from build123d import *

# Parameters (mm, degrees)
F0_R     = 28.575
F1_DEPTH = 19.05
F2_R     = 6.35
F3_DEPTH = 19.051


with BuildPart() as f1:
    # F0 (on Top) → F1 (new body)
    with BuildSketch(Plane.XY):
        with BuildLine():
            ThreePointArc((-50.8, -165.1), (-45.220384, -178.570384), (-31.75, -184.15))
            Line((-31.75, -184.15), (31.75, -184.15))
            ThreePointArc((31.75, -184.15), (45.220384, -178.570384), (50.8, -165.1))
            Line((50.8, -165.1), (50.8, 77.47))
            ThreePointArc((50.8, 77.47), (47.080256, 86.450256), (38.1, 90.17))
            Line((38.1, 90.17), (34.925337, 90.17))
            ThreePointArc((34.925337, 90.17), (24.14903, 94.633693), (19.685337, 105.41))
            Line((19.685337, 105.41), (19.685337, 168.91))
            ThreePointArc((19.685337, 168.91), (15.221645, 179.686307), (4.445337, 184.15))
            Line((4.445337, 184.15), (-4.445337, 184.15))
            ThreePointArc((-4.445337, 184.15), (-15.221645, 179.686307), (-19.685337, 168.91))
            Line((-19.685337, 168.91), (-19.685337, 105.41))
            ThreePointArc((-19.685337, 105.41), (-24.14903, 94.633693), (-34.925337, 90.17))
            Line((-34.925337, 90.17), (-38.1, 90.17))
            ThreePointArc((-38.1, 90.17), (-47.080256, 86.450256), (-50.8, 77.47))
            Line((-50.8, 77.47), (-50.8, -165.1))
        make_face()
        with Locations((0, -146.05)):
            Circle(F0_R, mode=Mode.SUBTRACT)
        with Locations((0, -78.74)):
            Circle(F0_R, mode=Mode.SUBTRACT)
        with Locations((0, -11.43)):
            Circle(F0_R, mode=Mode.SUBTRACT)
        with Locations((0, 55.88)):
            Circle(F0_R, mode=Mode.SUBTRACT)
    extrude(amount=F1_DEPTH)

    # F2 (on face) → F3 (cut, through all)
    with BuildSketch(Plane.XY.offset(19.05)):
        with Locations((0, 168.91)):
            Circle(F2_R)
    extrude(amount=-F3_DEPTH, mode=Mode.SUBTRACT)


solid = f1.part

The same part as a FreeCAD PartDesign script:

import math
import FreeCAD as App
import Part
import Sketcher

V = App.Vector
Q = App.Units.Quantity

doc = App.newDocument("Part")
params = doc.addObject("Spreadsheet::Sheet", "Params")
for row, (alias, value) in enumerate([
    ("sketch1_radius", "0.5 in"),
    ("sketch1_radius2", "0.6 in"),
    ("sketch1_diameter", "2.25 in"),
    ("sketch1_radius3", "0.75 in"),
    ("sketch1_width", "2.5 in"),
    ("pad1_length", "0.75 in"),
    ("sketch2_diameter", "0.5 in"),
], start=1):
    params.set(f"A{row}", alias)
    params.set(f"B{row}", "=" + value)
    params.setAlias(f"B{row}", alias)

body = doc.addObject("PartDesign::Body", "Body")

# Sketch on XY plane
sketch1 = doc.addObject("Sketcher::SketchObject", "Sketch")
body.addObject(sketch1)
sketch1.AttachmentSupport = (doc.XY_Plane, [""])
sketch1.MapMode = "FlatFace"
sketch1.addGeometry([
    Part.ArcOfCircle(Part.Circle(V(-31.7, -165.1, 0), V(0, 0, 1), 19.1), math.radians(-180), math.radians(-90)),  # 0
    Part.LineSegment(V(-31.8, -184.2, 0), V(31.8, -184.2, 0)),  # 1
    Part.ArcOfCircle(Part.Circle(V(31.7, -165.1, 0), V(0, 0, 1), 19.1), math.radians(-90), math.radians(0)),  # 2
    Part.LineSegment(V(50.8, -165.1, 0), V(50.8, 77.5, 0)),  # 3
    Part.ArcOfCircle(Part.Circle(V(38.1, 77.5, 0), V(0, 0, 1), 12.7), math.radians(0), math.radians(90)),  # 4
    Part.LineSegment(V(38.1, 90.2, 0), V(34.9, 90.2, 0)),  # 5
    Part.ArcOfCircle(Part.Circle(V(34.9, 105.4, 0), V(0, 0, 1), 15.2), math.radians(-180), math.radians(-90)),  # 6
    Part.LineSegment(V(19.7, 105.4, 0), V(19.7, 168.9, 0)),  # 7
    Part.ArcOfCircle(Part.Circle(V(4.4, 168.9, 0), V(0, 0, 1), 15.2), math.radians(0), math.radians(90)),  # 8
    Part.LineSegment(V(4.4, 184.2, 0), V(-4.4, 184.2, 0)),  # 9
    Part.ArcOfCircle(Part.Circle(V(-4.4, 168.9, 0), V(0, 0, 1), 15.2), math.radians(90), math.radians(180)),  # 10
    Part.LineSegment(V(-19.7, 168.9, 0), V(-19.7, 105.4, 0)),  # 11
    Part.ArcOfCircle(Part.Circle(V(-34.9, 105.4, 0), V(0, 0, 1), 15.2), math.radians(-90), math.radians(0)),  # 12
    Part.LineSegment(V(-34.9, 90.2, 0), V(-38.1, 90.2, 0)),  # 13
    Part.ArcOfCircle(Part.Circle(V(-38.1, 77.5, 0), V(0, 0, 1), 12.7), math.radians(90), math.radians(180)),  # 14
    Part.LineSegment(V(-50.8, 77.5, 0), V(-50.8, -165.1, 0)),  # 15
    Part.Circle(V(0, -146.1, 0), V(0, 0, 1), 28.6),  # 16
    Part.Circle(V(0, -78.7, 0), V(0, 0, 1), 28.6),  # 17
    Part.Circle(V(0, -11.4, 0), V(0, 0, 1), 28.6),  # 18
    Part.Circle(V(0, 55.9, 0), V(0, 0, 1), 28.6),  # 19
], False)
sketch1.addConstraint([
    Sketcher.Constraint("Tangent", 0, 2, 1, 1),
    Sketcher.Constraint("Tangent", 1, 2, 2, 1),
    Sketcher.Constraint("Tangent", 2, 2, 3, 1),
    Sketcher.Constraint("Tangent", 3, 2, 4, 1),
    Sketcher.Constraint("Tangent", 4, 2, 5, 1),
    Sketcher.Constraint("Tangent", 5, 2, 6, 2),
    Sketcher.Constraint("Tangent", 6, 1, 7, 1),
    Sketcher.Constraint("Tangent", 7, 2, 8, 1),
    Sketcher.Constraint("Tangent", 8, 2, 9, 1),
    Sketcher.Constraint("Tangent", 9, 2, 10, 1),
    Sketcher.Constraint("Tangent", 10, 2, 11, 1),
    Sketcher.Constraint("Tangent", 11, 2, 12, 2),
    Sketcher.Constraint("Tangent", 12, 1, 13, 1),
    Sketcher.Constraint("Tangent", 13, 2, 14, 1),
    Sketcher.Constraint("Tangent", 14, 2, 15, 1),
    Sketcher.Constraint("Tangent", 15, 2, 0, 1),
    Sketcher.Constraint("Horizontal", 1),
    Sketcher.Constraint("Vertical", 3),
    Sketcher.Constraint("Horizontal", 5),
    Sketcher.Constraint("Vertical", 7),
    Sketcher.Constraint("Horizontal", 9),
    Sketcher.Constraint("Vertical", 11),
    Sketcher.Constraint("Horizontal", 13),
    Sketcher.Constraint("Vertical", 15),
    Sketcher.Constraint("Equal", 0, 2),
    Sketcher.Constraint("Equal", 6, 8),
    Sketcher.Constraint("Equal", 8, 10),
    Sketcher.Constraint("Equal", 10, 12),
    Sketcher.Constraint("Equal", 4, 14),
    Sketcher.Constraint("Equal", 16, 17),
    Sketcher.Constraint("Equal", 17, 18),
    Sketcher.Constraint("Equal", 18, 19),
    Sketcher.Constraint("Symmetric", 6, 3, 12, 3, -2),
    Sketcher.Constraint("PointOnObject", 16, 3, -2),
    Sketcher.Constraint("PointOnObject", 17, 3, -2),
    Sketcher.Constraint("PointOnObject", 18, 3, -2),
    Sketcher.Constraint("PointOnObject", 19, 3, -2),
    Sketcher.Constraint("Equal", 5, 13),
    Sketcher.Constraint("Equal", 1, 7),
    Sketcher.Constraint("Radius", 4, Q("0.5 in")),
    Sketcher.Constraint("Radius", 6, Q("0.6 in")),
    Sketcher.Constraint("Diameter", 16, Q("2.25 in")),
    Sketcher.Constraint("Radius", 0, Q("0.75 in")),
    Sketcher.Constraint("DistanceX", 1, 1, 1, 2, Q("2.5 in")),
    Sketcher.Constraint("DistanceY", 3, 1, 3, 2, Q("9.55 in")),
    Sketcher.Constraint("DistanceY", 0, 3, -1, 1, Q("6.5 in")),
    Sketcher.Constraint("DistanceY", 17, 3, -1, 1, Q("3.1 in")),
    Sketcher.Constraint("DistanceY", -1, 1, 19, 3, Q("2.2 in")),
    Sketcher.Constraint("DistanceY", 16, 3, 4, 3, Q("8.8 in")),
    Sketcher.Constraint("DistanceY", 18, 3, 4, 3, Q("3.5 in")),
    Sketcher.Constraint("DistanceX", 5, 2, 5, 1, 3.174663),
])
sketch1.setExpression("Constraints[39]", "Params.sketch1_radius")
sketch1.setExpression("Constraints[40]", "Params.sketch1_radius2")
sketch1.setExpression("Constraints[41]", "Params.sketch1_diameter")
sketch1.setExpression("Constraints[42]", "Params.sketch1_radius3")
sketch1.setExpression("Constraints[43]", "Params.sketch1_width")
pad1 = doc.addObject("PartDesign::Pad", "Pad")
body.addObject(pad1)
pad1.Profile = sketch1
pad1.setExpression("Length", "Params.pad1_length")

# Sketch on XY plane
sketch2 = doc.addObject("Sketcher::SketchObject", "Sketch001")
body.addObject(sketch2)
sketch2.AttachmentSupport = (doc.XY_Plane, [""])
sketch2.MapMode = "FlatFace"
sketch2.AttachmentOffset = App.Placement(V(0, 0, 0.75 * 25.4), App.Rotation())
sketch2.addGeometry(Part.Circle(V(0, 169, 0), V(0, 0, 1), 6), False)
sketch2.addConstraint([
    Sketcher.Constraint("PointOnObject", 0, 3, -2),
    Sketcher.Constraint("Diameter", 0, Q("0.5 in")),
    Sketcher.Constraint("DistanceY", -1, 1, 0, 3, Q("6.65 in")),
])
sketch2.setExpression("Constraints[1]", "Params.sketch2_diameter")
pocket1 = doc.addObject("PartDesign::Pocket", "Pocket")
body.addObject(pocket1)
pocket1.Profile = sketch2
pocket1.Type = "ThroughAll"

doc.recompute()
